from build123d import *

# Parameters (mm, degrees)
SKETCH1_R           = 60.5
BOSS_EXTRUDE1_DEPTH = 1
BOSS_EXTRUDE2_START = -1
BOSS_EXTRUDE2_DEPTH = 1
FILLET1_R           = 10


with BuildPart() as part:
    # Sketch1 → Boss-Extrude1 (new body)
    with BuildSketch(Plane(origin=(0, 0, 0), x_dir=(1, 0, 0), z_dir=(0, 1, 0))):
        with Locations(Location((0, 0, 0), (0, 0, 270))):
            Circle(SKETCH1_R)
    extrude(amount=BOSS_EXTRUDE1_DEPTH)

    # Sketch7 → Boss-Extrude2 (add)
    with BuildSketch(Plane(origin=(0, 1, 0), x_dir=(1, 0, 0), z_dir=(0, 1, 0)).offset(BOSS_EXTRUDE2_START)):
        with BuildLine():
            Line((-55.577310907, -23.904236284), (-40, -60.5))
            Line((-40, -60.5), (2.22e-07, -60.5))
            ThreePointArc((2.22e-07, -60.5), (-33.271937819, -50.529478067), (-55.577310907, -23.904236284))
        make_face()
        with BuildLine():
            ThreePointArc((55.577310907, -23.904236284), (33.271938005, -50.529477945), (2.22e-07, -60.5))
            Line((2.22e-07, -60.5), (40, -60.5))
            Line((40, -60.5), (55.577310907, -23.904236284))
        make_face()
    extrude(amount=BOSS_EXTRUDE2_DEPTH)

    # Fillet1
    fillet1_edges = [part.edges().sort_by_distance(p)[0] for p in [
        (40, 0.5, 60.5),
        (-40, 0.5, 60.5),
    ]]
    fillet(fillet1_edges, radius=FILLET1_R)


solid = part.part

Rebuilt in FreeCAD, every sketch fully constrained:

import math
import FreeCAD as App
import Part
import Sketcher

V = App.Vector


def edges_at(feature, points):
    """Names of the edges that pass closest to the given points."""
    edges = feature.Shape.Edges
    near = lambda p: min(range(len(edges)), key=lambda i: edges[i].distToShape(Part.Vertex(*p))[0])
    return sorted({f"Edge{near(p) + 1}" for p in points})

doc = App.newDocument("Part")
params = doc.addObject("Spreadsheet::Sheet", "Params")
for row, (alias, value) in enumerate([
    ("sketch1_diameter", "121 mm"),
    ("pad1_length", "1 mm"),
    ("sketch2_radius", "60.5 mm"),
    ("sketch2_width", "40 mm"),
    ("pad2_length", "1 mm"),
    ("fillet_radius", "10 mm"),
], start=1):
    params.set(f"A{row}", alias)
    params.set(f"B{row}", "=" + value)
    params.setAlias(f"B{row}", alias)

body = doc.addObject("PartDesign::Body", "Body")

sketch1 = body.newObject("Sketcher::SketchObject", "Sketch")
sketch1.AttachmentSupport = (doc.getObject("XZ_Plane"), [""])
sketch1.MapMode = "FlatFace"
sketch1.addGeometry(Part.Circle(V(0, 0, 0), V(0, 0, 1), 60), False)
sketch1.addConstraint([
    Sketcher.Constraint("Coincident", 0, 3, -1, 1),
    Sketcher.Constraint("Diameter", 0, 121.0),
])
sketch1.setExpression("Constraints[1]", "Params.sketch1_diameter")
pad1 = body.newObject("PartDesign::Pad", "Pad")
pad1.Profile = sketch1
pad1.setExpression("Length", "Params.pad1_length")
pad1.Reversed = True

sketch2 = body.newObject("Sketcher::SketchObject", "Sketch001")
sketch2.AttachmentSupport = (doc.getObject("XZ_Plane"), [""])
sketch2.MapMode = "FlatFace"
sketch2.addGeometry([
    Part.LineSegment(V(-56, 24, 0), V(-40, 60, 0)),
    Part.LineSegment(V(-40, 60, 0), V(0, 60, 0)),
    Part.ArcOfCircle(Part.Circle(V(0, 0, 0), V(0, 0, 1), 61), math.radians(90), math.radians(157)),
    Part.ArcOfCircle(Part.Circle(V(0, 0, 0), V(0, 0, 1), 60), math.radians(23), math.radians(90)),
    Part.LineSegment(V(0, 60, 0), V(40, 60, 0)),
    Part.LineSegment(V(40, 60, 0), V(56, 24, 0)),
], False)
sketch2.addConstraint([
    Sketcher.Constraint("Coincident", 0, 2, 1, 1),
    Sketcher.Constraint("Tangent", 1, 2, 2, 1),
    Sketcher.Constraint("Coincident", 2, 2, 0, 1),
    Sketcher.Constraint("Tangent", 3, 2, 4, 1),
    Sketcher.Constraint("Coincident", 4, 2, 5, 1),
    Sketcher.Constraint("Coincident", 5, 2, 3, 1),
    Sketcher.Constraint("Horizontal", 1),
    Sketcher.Constraint("Horizontal", 4),
    Sketcher.Constraint("Coincident", 2, 3, -1, 1),
    Sketcher.Constraint("Coincident", 3, 3, -1, 1),
    Sketcher.Constraint("Equal", 2, 3),
    Sketcher.Constraint("Horizontal", 2, 2, 5, 2),
    Sketcher.Constraint("Equal", 1, 4),
    Sketcher.Constraint("Radius", 2, 60.5),
    Sketcher.Constraint("DistanceX", 1, 1, 1, 2, 40.0),
    Sketcher.Constraint("Distance", 0, 39.773138),
])
sketch2.setExpression("Constraints[13]", "Params.sketch2_radius")
sketch2.setExpression("Constraints[14]", "Params.sketch2_width")
pad2 = body.newObject("PartDesign::Pad", "Pad001")
pad2.Profile = sketch2
pad2.setExpression("Length", "Params.pad2_length")
pad2.Reversed = True
doc.recompute()

fillet = body.newObject("PartDesign::Fillet", "Fillet")
fillet.Base = (pad2, edges_at(pad2, [(40, 0.5, 60.5), (-40, 0.5, 60.5)]))
fillet.setExpression("Radius", "Params.fillet_radius")

doc.recompute()
